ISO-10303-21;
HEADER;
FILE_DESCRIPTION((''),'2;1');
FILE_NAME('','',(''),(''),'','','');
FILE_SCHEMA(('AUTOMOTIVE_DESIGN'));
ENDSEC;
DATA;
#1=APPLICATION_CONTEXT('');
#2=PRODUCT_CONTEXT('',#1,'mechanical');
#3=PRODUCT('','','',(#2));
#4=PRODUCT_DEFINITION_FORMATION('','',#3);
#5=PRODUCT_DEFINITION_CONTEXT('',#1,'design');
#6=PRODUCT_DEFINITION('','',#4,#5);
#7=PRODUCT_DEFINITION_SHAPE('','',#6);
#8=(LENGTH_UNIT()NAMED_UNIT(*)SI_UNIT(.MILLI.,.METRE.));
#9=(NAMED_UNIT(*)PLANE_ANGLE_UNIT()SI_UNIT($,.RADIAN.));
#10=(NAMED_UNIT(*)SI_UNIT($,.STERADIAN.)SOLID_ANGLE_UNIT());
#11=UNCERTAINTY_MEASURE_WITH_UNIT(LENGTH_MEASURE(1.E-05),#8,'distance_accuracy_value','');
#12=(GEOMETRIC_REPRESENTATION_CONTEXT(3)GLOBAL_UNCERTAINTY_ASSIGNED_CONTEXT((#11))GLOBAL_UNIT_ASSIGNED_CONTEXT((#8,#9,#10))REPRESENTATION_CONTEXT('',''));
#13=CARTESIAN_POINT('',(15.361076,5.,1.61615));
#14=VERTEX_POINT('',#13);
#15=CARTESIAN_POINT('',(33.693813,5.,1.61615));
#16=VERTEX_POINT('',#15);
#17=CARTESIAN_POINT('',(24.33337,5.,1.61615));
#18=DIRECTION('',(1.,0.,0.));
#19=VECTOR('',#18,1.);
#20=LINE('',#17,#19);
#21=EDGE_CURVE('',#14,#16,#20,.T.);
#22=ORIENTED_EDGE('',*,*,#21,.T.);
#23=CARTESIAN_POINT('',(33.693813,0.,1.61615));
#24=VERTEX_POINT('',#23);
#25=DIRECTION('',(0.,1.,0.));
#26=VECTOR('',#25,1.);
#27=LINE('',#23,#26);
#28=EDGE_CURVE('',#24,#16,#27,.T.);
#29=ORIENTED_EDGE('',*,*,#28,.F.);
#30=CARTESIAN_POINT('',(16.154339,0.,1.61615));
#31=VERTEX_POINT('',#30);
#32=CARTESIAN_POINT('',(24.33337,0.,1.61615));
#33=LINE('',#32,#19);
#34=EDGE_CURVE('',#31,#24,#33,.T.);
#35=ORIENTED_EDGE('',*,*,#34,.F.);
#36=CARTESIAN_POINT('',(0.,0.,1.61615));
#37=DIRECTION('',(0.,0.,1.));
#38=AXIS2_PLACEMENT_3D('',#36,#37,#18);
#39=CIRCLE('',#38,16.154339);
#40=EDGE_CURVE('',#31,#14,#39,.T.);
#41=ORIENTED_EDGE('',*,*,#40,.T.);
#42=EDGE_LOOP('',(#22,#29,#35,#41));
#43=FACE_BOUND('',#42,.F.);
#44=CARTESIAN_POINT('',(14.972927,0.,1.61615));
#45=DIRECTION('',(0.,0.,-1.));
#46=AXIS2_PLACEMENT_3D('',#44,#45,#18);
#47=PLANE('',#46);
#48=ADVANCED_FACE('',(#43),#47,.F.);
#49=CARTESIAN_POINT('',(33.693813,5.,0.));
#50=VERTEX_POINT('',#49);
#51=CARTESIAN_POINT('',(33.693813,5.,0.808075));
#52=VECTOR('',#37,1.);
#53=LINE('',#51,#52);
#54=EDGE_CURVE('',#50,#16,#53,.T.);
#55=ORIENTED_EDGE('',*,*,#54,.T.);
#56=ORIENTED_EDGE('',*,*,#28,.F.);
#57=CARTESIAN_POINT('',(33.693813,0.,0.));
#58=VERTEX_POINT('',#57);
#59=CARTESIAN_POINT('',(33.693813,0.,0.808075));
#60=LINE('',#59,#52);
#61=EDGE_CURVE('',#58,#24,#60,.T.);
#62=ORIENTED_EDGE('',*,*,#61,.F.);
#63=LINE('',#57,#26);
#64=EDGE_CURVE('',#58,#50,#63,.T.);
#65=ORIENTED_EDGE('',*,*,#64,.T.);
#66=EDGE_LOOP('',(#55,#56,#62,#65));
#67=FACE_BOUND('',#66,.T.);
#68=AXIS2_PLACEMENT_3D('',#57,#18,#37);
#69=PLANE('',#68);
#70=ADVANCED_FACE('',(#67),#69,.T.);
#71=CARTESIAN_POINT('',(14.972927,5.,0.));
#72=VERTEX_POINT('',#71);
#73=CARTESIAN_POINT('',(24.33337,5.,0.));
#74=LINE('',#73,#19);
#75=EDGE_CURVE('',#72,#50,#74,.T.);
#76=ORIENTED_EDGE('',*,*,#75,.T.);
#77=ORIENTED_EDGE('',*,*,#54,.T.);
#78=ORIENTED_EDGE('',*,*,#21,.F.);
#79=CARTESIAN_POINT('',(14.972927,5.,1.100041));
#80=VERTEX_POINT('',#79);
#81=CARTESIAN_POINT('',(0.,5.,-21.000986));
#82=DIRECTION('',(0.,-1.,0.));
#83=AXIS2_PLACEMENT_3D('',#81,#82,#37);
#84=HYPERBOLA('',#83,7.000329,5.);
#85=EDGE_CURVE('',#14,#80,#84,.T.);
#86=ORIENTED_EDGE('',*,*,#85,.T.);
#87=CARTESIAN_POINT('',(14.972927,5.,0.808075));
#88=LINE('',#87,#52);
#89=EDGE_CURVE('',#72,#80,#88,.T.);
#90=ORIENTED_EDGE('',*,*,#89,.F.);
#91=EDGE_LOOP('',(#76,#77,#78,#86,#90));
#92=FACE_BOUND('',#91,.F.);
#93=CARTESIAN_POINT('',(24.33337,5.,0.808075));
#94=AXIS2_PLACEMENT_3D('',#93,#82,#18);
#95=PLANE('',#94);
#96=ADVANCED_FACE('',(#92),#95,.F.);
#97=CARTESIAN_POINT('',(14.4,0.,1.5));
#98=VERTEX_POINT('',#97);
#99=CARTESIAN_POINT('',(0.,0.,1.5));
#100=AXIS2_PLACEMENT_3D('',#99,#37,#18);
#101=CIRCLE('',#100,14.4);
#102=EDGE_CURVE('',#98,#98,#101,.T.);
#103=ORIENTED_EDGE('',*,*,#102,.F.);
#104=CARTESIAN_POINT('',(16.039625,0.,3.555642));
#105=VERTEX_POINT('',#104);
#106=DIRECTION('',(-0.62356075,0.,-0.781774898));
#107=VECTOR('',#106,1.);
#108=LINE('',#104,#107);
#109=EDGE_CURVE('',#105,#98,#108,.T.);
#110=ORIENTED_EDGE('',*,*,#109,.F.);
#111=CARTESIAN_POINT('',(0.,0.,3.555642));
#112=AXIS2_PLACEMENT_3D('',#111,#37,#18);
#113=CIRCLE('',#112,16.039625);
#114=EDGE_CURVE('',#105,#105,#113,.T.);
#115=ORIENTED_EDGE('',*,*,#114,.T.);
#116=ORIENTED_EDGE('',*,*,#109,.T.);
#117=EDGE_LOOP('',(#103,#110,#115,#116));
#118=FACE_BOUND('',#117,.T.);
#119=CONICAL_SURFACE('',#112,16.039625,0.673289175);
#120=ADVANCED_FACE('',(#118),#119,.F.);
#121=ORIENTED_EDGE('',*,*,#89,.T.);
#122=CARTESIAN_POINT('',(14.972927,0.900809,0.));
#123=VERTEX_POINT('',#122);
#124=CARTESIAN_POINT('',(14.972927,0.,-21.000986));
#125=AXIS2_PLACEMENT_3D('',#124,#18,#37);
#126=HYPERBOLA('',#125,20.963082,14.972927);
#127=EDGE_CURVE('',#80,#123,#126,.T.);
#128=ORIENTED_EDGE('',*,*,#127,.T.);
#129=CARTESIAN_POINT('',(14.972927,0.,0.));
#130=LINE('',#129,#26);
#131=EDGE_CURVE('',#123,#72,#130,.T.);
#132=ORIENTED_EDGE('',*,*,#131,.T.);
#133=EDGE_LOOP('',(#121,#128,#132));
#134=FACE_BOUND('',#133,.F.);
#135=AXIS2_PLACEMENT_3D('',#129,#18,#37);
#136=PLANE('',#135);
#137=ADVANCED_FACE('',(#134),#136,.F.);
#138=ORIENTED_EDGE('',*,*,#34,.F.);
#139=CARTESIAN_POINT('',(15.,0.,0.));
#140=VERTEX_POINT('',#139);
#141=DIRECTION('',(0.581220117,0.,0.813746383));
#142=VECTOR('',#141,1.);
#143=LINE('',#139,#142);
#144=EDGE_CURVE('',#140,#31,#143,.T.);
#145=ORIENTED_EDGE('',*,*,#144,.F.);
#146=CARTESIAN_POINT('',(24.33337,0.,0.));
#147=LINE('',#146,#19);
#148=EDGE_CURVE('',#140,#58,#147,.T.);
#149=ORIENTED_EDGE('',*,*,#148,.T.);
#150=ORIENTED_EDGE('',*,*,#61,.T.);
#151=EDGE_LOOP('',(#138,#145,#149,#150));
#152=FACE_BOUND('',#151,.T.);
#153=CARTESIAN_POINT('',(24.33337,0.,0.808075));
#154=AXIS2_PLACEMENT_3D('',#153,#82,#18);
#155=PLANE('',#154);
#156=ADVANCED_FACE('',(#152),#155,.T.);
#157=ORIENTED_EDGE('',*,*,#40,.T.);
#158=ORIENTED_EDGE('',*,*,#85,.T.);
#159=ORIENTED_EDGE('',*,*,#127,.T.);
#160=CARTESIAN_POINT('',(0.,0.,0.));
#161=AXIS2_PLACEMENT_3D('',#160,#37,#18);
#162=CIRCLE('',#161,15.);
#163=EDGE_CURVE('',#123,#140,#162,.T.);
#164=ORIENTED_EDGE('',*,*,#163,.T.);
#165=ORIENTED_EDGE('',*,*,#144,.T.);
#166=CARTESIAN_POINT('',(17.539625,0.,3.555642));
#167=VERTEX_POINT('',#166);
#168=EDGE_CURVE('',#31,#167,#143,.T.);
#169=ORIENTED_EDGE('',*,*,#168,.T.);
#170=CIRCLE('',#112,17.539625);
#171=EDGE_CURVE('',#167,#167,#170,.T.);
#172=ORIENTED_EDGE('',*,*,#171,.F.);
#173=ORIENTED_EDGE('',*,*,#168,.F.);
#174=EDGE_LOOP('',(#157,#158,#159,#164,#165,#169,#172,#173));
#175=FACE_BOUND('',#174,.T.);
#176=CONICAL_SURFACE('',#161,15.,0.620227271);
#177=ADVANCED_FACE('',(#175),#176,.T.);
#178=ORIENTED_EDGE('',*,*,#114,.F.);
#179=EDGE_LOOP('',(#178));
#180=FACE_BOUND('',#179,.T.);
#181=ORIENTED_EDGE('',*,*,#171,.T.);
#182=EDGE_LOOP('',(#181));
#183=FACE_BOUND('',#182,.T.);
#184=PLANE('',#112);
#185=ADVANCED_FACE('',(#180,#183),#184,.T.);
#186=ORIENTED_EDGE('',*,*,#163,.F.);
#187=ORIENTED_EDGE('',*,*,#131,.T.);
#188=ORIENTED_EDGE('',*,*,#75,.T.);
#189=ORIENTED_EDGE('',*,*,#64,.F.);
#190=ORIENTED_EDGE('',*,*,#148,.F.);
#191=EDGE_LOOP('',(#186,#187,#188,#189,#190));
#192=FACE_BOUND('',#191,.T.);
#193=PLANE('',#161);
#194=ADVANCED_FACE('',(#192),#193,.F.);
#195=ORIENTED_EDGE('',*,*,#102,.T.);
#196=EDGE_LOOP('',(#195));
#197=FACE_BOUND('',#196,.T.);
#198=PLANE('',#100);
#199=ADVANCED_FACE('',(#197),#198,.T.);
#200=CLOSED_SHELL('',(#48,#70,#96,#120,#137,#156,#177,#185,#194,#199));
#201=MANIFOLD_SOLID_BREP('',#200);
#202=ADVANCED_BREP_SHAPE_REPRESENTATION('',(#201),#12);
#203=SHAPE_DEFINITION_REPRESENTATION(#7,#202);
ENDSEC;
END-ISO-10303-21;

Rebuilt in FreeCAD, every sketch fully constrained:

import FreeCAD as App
import Part
import Sketcher

V = App.Vector

doc = App.newDocument("Part")
body = doc.addObject("PartDesign::Body", "Body")

# Sketch on XY plane
sketch1 = doc.addObject("Sketcher::SketchObject", "Sketch")
body.addObject(sketch1)
sketch1.AttachmentSupport = (doc.XY_Plane, [""])
sketch1.MapMode = "FlatFace"
sketch1.addGeometry([
    Part.LineSegment(V(15, 1.6, 0), V(15, 0, 0)),
    Part.LineSegment(V(15, 0, 0), V(33.7, 0, 0)),
    Part.LineSegment(V(33.7, 0, 0), V(33.7, 1.6, 0)),
    Part.LineSegment(V(33.7, 1.6, 0), V(15, 1.6, 0)),
], False)
sketch1.addConstraint([
    Sketcher.Constraint("Coincident", 0, 2, 1, 1),
    Sketcher.Constraint("Coincident", 1, 2, 2, 1),
    Sketcher.Constraint("Coincident", 2, 2, 3, 1),
    Sketcher.Constraint("Coincident", 3, 2, 0, 1),
    Sketcher.Constraint("Vertical", 0),
    Sketcher.Constraint("Horizontal", 1),
    Sketcher.Constraint("Vertical", 2),
    Sketcher.Constraint("Horizontal", 3),
    Sketcher.Constraint("PointOnObject", 0, 2, -1),
    Sketcher.Constraint("DistanceY", 0, 2, 0, 1, 1.61615),
    Sketcher.Constraint("DistanceX", 1, 1, 1, 2, 18.720886),
    Sketcher.Constraint("DistanceX", -1, 1, 0, 2, 14.972927),
])
pad1 = doc.addObject("PartDesign::Pad", "Pad")
body.addObject(pad1)
pad1.Profile = sketch1
pad1.Length = 5
pad1.Reversed = True
body2 = doc.addObject("PartDesign::Body", "Body001")
doc.recompute()

body.Placement = App.Placement(V(0, 0, 0), App.Rotation(V(1, 0, 0), 90))
boolean = doc.addObject("PartDesign::Boolean", "Boolean")
body2.addObject(boolean)
boolean.Type = "Fuse"
boolean.addObjects([body])
body3 = doc.addObject("PartDesign::Body", "Body002")

# Sketch on XY plane
sketch2 = doc.addObject("Sketcher::SketchObject", "Sketch001")
body3.addObject(sketch2)
sketch2.AttachmentSupport = (doc.getObject("XY_Plane002"), [""])
sketch2.MapMode = "FlatFace"
sketch2.addGeometry([
    Part.LineSegment(V(0, 0, 0), V(15, 0, 0)),  # 0
    Part.LineSegment(V(15, 0, 0), V(17.5, 3.6, 0)),  # 1
    Part.LineSegment(V(17.5, 3.6, 0), V(16, 3.6, 0)),  # 2
    Part.LineSegment(V(16, 3.6, 0), V(14.4, 1.5, 0)),  # 3
    Part.LineSegment(V(14.4, 1.5, 0), V(0, 1.5, 0)),  # 4
    Part.LineSegment(V(0, 1.5, 0), V(0, 0, 0)),  # 5
], False)
sketch2.addConstraint([
    Sketcher.Constraint("Coincident", 0, 2, 1, 1),
    Sketcher.Constraint("Coincident", 1, 2, 2, 1),
    Sketcher.Constraint("Coincident", 2, 2, 3, 1),
    Sketcher.Constraint("Coincident", 3, 2, 4, 1),
    Sketcher.Constraint("Coincident", 4, 2, 5, 1),
    Sketcher.Constraint("Coincident", 5, 2, 0, 1),
    Sketcher.Constraint("Horizontal", 0),
    Sketcher.Constraint("Horizontal", 2),
    Sketcher.Constraint("Horizontal", 4),
    Sketcher.Constraint("Vertical", 5),
    Sketcher.Constraint("Coincident", 5, 2, -1, 1),
    Sketcher.Constraint("Equal", 2, 5),
    Sketcher.Constraint("DistanceX", 0, 1, 0, 2, 15.0),
    Sketcher.Constraint("DistanceX", 2, 2, 2, 1, 1.5),
    Sketcher.Constraint("DistanceX", 4, 2, 4, 1, 14.4),
    Sketcher.Constraint("Distance", 1, 4.369472),
    Sketcher.Constraint("Distance", 3, 2.629455),
])
revolution = doc.addObject("PartDesign::Revolution", "Revolution")
body3.addObject(revolution)
revolution.Profile = sketch2
revolution.ReferenceAxis = (sketch2, ["V_Axis"])
revolution.Angle = 360
body4 = doc.addObject("PartDesign::Body", "Body003")
doc.recompute()

body3.Placement = App.Placement(V(0, 0, 0), App.Rotation(V(1, 0, 0), 90))
boolean2 = doc.addObject("PartDesign::Boolean", "Boolean001")
body4.addObject(boolean2)
boolean2.Type = "Fuse"
boolean2.addObjects([body3])
doc.recompute()

boolean3 = doc.addObject("PartDesign::Boolean", "Boolean002")
body4.addObject(boolean3)
boolean3.Type = "Fuse"
boolean3.addObjects([body2])

doc.recompute()
